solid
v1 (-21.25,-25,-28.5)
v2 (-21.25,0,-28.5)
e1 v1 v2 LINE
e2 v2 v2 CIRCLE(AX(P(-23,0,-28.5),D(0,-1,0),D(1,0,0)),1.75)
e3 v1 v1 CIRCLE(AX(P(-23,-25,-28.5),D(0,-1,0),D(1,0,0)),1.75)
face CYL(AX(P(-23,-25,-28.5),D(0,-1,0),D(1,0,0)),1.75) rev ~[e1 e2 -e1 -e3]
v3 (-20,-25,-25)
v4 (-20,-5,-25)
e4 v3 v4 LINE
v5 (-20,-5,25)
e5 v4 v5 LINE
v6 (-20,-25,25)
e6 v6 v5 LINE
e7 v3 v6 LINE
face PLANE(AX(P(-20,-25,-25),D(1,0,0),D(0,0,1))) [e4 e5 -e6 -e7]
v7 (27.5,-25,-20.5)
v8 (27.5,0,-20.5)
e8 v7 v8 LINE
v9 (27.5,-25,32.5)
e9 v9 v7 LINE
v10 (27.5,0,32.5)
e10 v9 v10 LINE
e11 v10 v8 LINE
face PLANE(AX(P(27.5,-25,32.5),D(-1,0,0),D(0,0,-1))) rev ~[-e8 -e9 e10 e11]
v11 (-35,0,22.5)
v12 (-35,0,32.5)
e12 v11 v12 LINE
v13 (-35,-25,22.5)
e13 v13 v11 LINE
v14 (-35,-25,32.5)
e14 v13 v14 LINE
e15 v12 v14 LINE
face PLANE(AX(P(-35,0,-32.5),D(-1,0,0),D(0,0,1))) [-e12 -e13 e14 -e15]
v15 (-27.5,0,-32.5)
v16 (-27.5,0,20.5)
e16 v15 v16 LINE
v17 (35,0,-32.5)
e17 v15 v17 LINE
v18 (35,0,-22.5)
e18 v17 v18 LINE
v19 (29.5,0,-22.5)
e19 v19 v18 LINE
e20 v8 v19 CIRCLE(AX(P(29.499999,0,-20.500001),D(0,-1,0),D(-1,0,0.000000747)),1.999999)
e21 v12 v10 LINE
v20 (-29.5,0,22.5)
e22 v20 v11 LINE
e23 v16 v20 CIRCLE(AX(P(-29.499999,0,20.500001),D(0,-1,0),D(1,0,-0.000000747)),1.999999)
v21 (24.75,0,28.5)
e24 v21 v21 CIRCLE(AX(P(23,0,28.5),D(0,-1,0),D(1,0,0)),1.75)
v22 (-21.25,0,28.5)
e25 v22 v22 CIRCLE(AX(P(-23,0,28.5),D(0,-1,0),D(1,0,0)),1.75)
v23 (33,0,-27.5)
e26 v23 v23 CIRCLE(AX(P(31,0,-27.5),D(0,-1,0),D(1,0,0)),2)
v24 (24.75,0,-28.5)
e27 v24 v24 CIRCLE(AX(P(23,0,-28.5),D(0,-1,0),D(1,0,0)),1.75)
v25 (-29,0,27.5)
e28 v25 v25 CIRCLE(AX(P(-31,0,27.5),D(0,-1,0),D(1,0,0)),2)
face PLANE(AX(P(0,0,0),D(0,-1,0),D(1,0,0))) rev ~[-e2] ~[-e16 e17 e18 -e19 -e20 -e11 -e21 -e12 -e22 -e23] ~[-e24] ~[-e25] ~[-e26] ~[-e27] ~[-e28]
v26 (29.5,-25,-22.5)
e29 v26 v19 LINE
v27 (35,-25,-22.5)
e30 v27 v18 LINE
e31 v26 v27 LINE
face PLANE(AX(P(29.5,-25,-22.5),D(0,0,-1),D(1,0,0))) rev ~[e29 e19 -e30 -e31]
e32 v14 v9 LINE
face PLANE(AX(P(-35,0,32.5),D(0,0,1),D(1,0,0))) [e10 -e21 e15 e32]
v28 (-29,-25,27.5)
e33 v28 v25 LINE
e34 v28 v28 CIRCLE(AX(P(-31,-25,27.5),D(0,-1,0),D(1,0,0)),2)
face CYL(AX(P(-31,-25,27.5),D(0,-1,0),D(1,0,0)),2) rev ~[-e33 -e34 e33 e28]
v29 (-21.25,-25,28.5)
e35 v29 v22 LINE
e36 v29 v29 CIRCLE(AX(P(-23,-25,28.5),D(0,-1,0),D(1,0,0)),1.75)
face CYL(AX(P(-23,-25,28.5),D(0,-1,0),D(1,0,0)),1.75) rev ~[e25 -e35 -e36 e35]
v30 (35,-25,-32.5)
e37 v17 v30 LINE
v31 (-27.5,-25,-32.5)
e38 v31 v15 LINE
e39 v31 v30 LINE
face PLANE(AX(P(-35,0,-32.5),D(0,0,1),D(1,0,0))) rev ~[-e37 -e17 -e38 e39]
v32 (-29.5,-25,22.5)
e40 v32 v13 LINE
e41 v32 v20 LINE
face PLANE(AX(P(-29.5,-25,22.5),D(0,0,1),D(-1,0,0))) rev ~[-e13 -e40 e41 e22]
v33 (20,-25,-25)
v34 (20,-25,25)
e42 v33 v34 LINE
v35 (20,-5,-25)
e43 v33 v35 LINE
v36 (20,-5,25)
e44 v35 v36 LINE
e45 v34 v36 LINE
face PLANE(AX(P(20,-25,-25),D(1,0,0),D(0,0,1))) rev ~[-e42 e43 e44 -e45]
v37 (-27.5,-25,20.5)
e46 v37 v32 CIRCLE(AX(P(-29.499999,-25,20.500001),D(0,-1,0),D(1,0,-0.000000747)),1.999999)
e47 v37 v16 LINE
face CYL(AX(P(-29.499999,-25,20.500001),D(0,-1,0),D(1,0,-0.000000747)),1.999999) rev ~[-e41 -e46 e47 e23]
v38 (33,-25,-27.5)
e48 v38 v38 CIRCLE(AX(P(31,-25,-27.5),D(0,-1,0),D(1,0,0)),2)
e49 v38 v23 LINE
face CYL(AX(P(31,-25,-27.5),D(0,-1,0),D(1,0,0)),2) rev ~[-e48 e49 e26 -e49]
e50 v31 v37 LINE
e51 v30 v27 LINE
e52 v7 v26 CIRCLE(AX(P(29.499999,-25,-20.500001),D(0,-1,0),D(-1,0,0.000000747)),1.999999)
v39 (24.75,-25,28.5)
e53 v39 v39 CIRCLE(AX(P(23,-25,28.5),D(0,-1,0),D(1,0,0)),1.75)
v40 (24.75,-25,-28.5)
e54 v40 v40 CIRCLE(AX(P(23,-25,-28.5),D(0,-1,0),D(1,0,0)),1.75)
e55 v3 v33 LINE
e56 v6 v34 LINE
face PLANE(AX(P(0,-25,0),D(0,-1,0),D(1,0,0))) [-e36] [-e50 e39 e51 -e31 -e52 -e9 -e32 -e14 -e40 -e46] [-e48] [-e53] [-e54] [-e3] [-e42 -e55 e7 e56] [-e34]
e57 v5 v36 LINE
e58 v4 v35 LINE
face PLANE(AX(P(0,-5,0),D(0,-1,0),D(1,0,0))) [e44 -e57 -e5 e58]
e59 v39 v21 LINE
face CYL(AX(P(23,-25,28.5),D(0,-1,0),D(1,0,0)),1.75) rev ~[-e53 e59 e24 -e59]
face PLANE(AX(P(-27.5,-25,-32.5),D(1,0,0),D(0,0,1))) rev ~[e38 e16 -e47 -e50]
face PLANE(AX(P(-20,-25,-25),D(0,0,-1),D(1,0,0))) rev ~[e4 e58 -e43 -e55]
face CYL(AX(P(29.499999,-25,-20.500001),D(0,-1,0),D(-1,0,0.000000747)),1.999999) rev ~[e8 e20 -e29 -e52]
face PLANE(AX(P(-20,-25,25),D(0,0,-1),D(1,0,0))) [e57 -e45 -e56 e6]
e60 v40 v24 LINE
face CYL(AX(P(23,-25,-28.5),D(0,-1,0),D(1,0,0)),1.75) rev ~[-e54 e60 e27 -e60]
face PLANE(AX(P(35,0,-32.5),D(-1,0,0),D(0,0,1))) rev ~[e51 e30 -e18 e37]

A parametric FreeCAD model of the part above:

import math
import FreeCAD as App
import Part
import Sketcher
from FreeCAD import Vector


def add_polygon(sketch, points):
    """Adds a closed chain of lines whose ends are joined by coincident constraints."""
    first, n = sketch.GeometryCount, len(points)
    for a, b in zip(points, points[1:] + points[:1]):
        sketch.addGeometry(Part.LineSegment(App.Vector(*a, 0), App.Vector(*b, 0)), False)
    for i in range(n):
        sketch.addConstraint(Sketcher.Constraint("Coincident", first + i, 2, first + (i + 1) % n, 1))

doc = App.newDocument("Part")
body = doc.addObject("PartDesign::Body", "Body")

sketch1 = body.newObject("Sketcher::SketchObject", "Sketch")
sketch1.AttachmentSupport = (doc.getObject("XZ_Plane"), [""])
sketch1.MapMode = "FlatFace"
add_polygon(sketch1, [(-35, 32), (-35, -32), (35, -32), (35, 32)])
sketch1.addConstraint([
    Sketcher.Constraint("Vertical", 0),
    Sketcher.Constraint("Horizontal", 1),
    Sketcher.Constraint("Vertical", 2),
    Sketcher.Constraint("Horizontal", 3),
    Sketcher.Constraint("Symmetric", 0, 2, 2, 2, -1, 1),
    Sketcher.Constraint("DistanceX", 1, 1, 1, 2, 70.0),
    Sketcher.Constraint("DistanceY", 0, 2, 0, 1, 65.0),
])
pad1 = body.newObject("PartDesign::Pad", "Pad")
pad1.Profile = sketch1
pad1.Length = 25

sketch2 = body.newObject("Sketcher::SketchObject", "Sketch001")
sketch2.AttachmentSupport = (doc.getObject("XZ_Plane"), [""])
sketch2.MapMode = "FlatFace"
sketch2.AttachmentOffset = App.Placement(Vector(0, 0, 25), App.Rotation())
add_polygon(sketch2, [(-20, 25), (-20, -25), (20, -25), (20, 25)])
sketch2.addConstraint([
    Sketcher.Constraint("Vertical", 0),
    Sketcher.Constraint("Horizontal", 1),
    Sketcher.Constraint("Vertical", 2),
    Sketcher.Constraint("Horizontal", 3),
    Sketcher.Constraint("Symmetric", 0, 2, 2, 2, -1, 1),
    Sketcher.Constraint("DistanceX", 1, 1, 1, 2, 40.0),
    Sketcher.Constraint("DistanceY", 0, 2, 0, 1, 50.0),
])
pocket1 = body.newObject("PartDesign::Pocket", "Pocket")
pocket1.Profile = sketch2
pocket1.Length = 20

sketch3 = body.newObject("Sketcher::SketchObject", "Sketch002")
sketch3.AttachmentSupport = (doc.getObject("XZ_Plane"), [""])
sketch3.MapMode = "FlatFace"
sketch3.AttachmentOffset = App.Placement(Vector(0, 0, 25), App.Rotation())
sketch3.addGeometry([
    Part.LineSegment(Vector(-35, 22.5, 0), Vector(-35, -32.5, 0)),
    Part.LineSegment(Vector(-35, -32.5, 0), Vector(-27.5, -32.5, 0)),
    Part.LineSegment(Vector(-27.5, -32.5, 0), Vector(-27.5, 20.5, 0)),
    Part.ArcOfCircle(Part.Circle(Vector(-29.5, 20.5, 0), Vector(0, 0, 1), 2), math.radians(0), math.radians(90)),
    Part.LineSegment(Vector(-29.5, 22.5, 0), Vector(-35, 22.5, 0)),
], False)
sketch3.addConstraint([
    Sketcher.Constraint("Coincident", 0, 2, 1, 1),
    Sketcher.Constraint("Coincident", 1, 2, 2, 1),
    Sketcher.Constraint("Tangent", 2, 2, 3, 1),
    Sketcher.Constraint("Tangent", 3, 2, 4, 1),
    Sketcher.Constraint("Coincident", 4, 2, 0, 1),
    Sketcher.Constraint("Vertical", 0),
    Sketcher.Constraint("Horizontal", 1),
    Sketcher.Constraint("Vertical", 2),
    Sketcher.Constraint("Horizontal", 4),
    Sketcher.Constraint("Radius", 3, 1.999999),
    Sketcher.Constraint("DistanceY", 0, 2, 0, 1, 55.0),
    Sketcher.Constraint("DistanceX", 1, 1, 1, 2, 7.5),
    Sketcher.Constraint("DistanceX", 0, 2, -1, 1, 35.0),
    Sketcher.Constraint("DistanceY", -1, 1, 3, 3, 20.500001),
])
pocket2 = body.newObject("PartDesign::Pocket", "Pocket001")
pocket2.Profile = sketch3
pocket2.Type = "ThroughAll"

sketch4 = body.newObject("Sketcher::SketchObject", "Sketch003")
sketch4.AttachmentSupport = (doc.getObject("XZ_Plane"), [""])
sketch4.MapMode = "FlatFace"
sketch4.AttachmentOffset = App.Placement(Vector(0, 0, 25), App.Rotation())
sketch4.addGeometry([
    Part.LineSegment(Vector(35, -22.5, 0), Vector(35, 32.5, 0)),
    Part.LineSegment(Vector(35, 32.5, 0), Vector(27.5, 32.5, 0)),
    Part.LineSegment(Vector(27.5, 32.5, 0), Vector(27.5, -20.5, 0)),
    Part.ArcOfCircle(Part.Circle(Vector(29.5, -20.5, 0), Vector(0, 0, 1), 2), math.radians(180), math.radians(270)),
    Part.LineSegment(Vector(29.5, -22.5, 0), Vector(35, -22.5, 0)),
], False)
sketch4.addConstraint([
    Sketcher.Constraint("Coincident", 0, 2, 1, 1),
    Sketcher.Constraint("Coincident", 1, 2, 2, 1),
    Sketcher.Constraint("Tangent", 2, 2, 3, 1),
    Sketcher.Constraint("Tangent", 3, 2, 4, 1),
    Sketcher.Constraint("Coincident", 4, 2, 0, 1),
    Sketcher.Constraint("Vertical", 0),
    Sketcher.Constraint("Horizontal", 1),
    Sketcher.Constraint("Vertical", 2),
    Sketcher.Constraint("Horizontal", 4),
    Sketcher.Constraint("Radius", 3, 1.999999),
    Sketcher.Constraint("DistanceY", 0, 1, 0, 2, 55.0),
    Sketcher.Constraint("DistanceX", 1, 2, 1, 1, 7.5),
    Sketcher.Constraint("DistanceX", -1, 1, 0, 2, 35.0),
    Sketcher.Constraint("DistanceY", 3, 3, -1, 1, 20.500001),
])
pocket3 = body.newObject("PartDesign::Pocket", "Pocket002")
pocket3.Profile = sketch4
pocket3.Type = "ThroughAll"

sketch5 = body.newObject("Sketcher::SketchObject", "Sketch004")
sketch5.AttachmentSupport = (doc.getObject("XZ_Plane"), [""])
sketch5.MapMode = "FlatFace"
sketch5.AttachmentOffset = App.Placement(Vector(0, 0, 25), App.Rotation())
sketch5.addGeometry([
    Part.Circle(Vector(-31, 27.5, 0), Vector(0, 0, 1), 2),
    Part.Circle(Vector(31, -27.5, 0), Vector(0, 0, 1), 2),
    Part.Circle(Vector(-23, 28.5, 0), Vector(0, 0, 1), 1.8),
    Part.Circle(Vector(23, 28.5, 0), Vector(0, 0, 1), 1.8),
    Part.Circle(Vector(-23, -28.5, 0), Vector(0, 0, 1), 1.8),
    Part.Circle(Vector(23, -28.5, 0), Vector(0, 0, 1), 1.8),
], False)
sketch5.addConstraint([
    Sketcher.Constraint("Equal", 0, 1),
    Sketcher.Constraint("Equal", 2, 3),
    Sketcher.Constraint("Equal", 3, 4),
    Sketcher.Constraint("Equal", 4, 5),
    Sketcher.Constraint("Symmetric", 0, 3, 1, 3, -1, 1),
    Sketcher.Constraint("Symmetric", 3, 3, 4, 3, -1, 1),
    Sketcher.Constraint("Symmetric", 2, 3, 5, 3, -1, 1),
    Sketcher.Constraint("Symmetric", 2, 3, 3, 3, -2),
    Sketcher.Constraint("Diameter", 0, 4.0),
    Sketcher.Constraint("Diameter", 2, 3.5),
    Sketcher.Constraint("DistanceX", 0, 3, -1, 1, 31.0),
    Sketcher.Constraint("DistanceX", 2, 3, -1, 1, 23.0),
    Sketcher.Constraint("DistanceY", 1, 3, 0, 3, 55.0),
    Sketcher.Constraint("DistanceY", 0, 3, 2, 3, 1.0),
])
pocket4 = body.newObject("PartDesign::Pocket", "Pocket003")
pocket4.Profile = sketch5
pocket4.Type = "ThroughAll"

doc.recompute()
